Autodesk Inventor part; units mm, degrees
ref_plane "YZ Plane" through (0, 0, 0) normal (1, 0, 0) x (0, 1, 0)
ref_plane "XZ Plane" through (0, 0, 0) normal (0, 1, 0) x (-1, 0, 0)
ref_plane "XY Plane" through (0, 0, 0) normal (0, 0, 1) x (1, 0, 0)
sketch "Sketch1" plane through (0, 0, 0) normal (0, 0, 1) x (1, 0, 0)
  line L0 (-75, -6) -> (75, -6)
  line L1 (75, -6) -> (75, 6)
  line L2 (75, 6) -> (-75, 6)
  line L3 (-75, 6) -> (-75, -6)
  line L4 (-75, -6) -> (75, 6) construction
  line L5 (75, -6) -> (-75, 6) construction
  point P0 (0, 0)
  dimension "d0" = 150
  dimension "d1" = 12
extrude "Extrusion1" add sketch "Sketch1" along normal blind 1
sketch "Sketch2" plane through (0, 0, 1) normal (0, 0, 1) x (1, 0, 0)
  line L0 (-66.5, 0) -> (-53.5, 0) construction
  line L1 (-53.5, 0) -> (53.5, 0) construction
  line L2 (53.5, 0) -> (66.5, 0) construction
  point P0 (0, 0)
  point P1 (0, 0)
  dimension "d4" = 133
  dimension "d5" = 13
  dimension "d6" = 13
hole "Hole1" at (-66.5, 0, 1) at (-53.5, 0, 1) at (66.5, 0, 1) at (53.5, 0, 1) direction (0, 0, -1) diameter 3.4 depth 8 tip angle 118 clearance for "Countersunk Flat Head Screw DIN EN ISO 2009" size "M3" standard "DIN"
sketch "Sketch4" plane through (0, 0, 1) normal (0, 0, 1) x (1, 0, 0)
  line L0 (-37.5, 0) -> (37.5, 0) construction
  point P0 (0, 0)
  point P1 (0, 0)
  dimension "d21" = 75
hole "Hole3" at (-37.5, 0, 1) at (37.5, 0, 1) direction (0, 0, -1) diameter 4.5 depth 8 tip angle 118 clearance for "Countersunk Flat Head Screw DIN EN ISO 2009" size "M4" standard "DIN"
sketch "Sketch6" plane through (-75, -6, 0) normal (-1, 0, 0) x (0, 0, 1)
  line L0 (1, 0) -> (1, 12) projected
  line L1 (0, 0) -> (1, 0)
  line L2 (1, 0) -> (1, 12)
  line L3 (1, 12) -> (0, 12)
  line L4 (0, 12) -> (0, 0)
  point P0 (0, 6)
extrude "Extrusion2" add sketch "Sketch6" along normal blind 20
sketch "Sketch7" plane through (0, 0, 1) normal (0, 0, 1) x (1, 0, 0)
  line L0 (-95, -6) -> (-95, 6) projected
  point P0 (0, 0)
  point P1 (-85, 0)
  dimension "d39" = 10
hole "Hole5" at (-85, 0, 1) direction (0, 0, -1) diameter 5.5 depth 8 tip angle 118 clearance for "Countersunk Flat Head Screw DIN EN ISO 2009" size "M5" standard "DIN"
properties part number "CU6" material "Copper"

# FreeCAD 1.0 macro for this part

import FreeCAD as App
import Part
import Sketcher

V = App.Vector

doc = App.newDocument("Part")
body = doc.addObject("PartDesign::Body", "Body")

# Sketch on XY plane
sketch1 = body.newObject("Sketcher::SketchObject", "Sketch")
sketch1.AttachmentSupport = (doc.getObject("XY_Plane"), [""])
sketch1.MapMode = "FlatFace"
sketch1.addGeometry(Part.LineSegment(V(-75, 6, 0), V(-75, -6, 0)), False)
sketch1.addGeometry(Part.LineSegment(V(-75, -6, 0), V(75, -6, 0)), False)
sketch1.addGeometry(Part.LineSegment(V(75, -6, 0), V(75, 6, 0)), False)
sketch1.addGeometry(Part.LineSegment(V(75, 6, 0), V(-75, 6, 0)), False)
sketch1.addConstraint(Sketcher.Constraint("Coincident", 0, 2, 1, 1))
sketch1.addConstraint(Sketcher.Constraint("Coincident", 1, 2, 2, 1))
sketch1.addConstraint(Sketcher.Constraint("Coincident", 2, 2, 3, 1))
sketch1.addConstraint(Sketcher.Constraint("Coincident", 3, 2, 0, 1))
sketch1.addConstraint(Sketcher.Constraint("Vertical", 0))
sketch1.addConstraint(Sketcher.Constraint("Horizontal", 1))
sketch1.addConstraint(Sketcher.Constraint("Vertical", 2))
sketch1.addConstraint(Sketcher.Constraint("Horizontal", 3))
sketch1.addConstraint(Sketcher.Constraint("Symmetric", 0, 2, 2, 2, -1, 1))
sketch1.addConstraint(Sketcher.Constraint("DistanceX", 1, 1, 1, 2, 150.0))
sketch1.addConstraint(Sketcher.Constraint("DistanceY", 0, 2, 0, 1, 12.0))
pad1 = body.newObject("PartDesign::Pad", "Pad")
pad1.Profile = sketch1
pad1.Length = 1

# Sketch on XY plane
sketch2 = body.newObject("Sketcher::SketchObject", "Sketch001")
sketch2.AttachmentSupport = (doc.getObject("XY_Plane"), [""])
sketch2.MapMode = "FlatFace"
sketch2.AttachmentOffset = App.Placement(V(0, 0, 1), App.Rotation())
sketch2.addGeometry(Part.Circle(V(-66.5, 0, 0), V(0, 0, 1), 1.7), False)
sketch2.addGeometry(Part.Circle(V(-53.5, 0, 0), V(0, 0, 1), 1.7), False)
sketch2.addGeometry(Part.Circle(V(66.5, 0, 0), V(0, 0, 1), 1.7), False)
sketch2.addGeometry(Part.Circle(V(53.5, 0, 0), V(0, 0, 1), 1.7), False)
sketch2.addConstraint(Sketcher.Constraint("Equal", 0, 1))
sketch2.addConstraint(Sketcher.Constraint("Equal", 1, 2))
sketch2.addConstraint(Sketcher.Constraint("Equal", 2, 3))
sketch2.addConstraint(Sketcher.Constraint("Symmetric", 0, 3, 2, 3, -1, 1))
sketch2.addConstraint(Sketcher.Constraint("Symmetric", 1, 3, 3, 3, -1, 1))
sketch2.addConstraint(Sketcher.Constraint("PointOnObject", 0, 3, -1))
sketch2.addConstraint(Sketcher.Constraint("PointOnObject", 1, 3, -1))
sketch2.addConstraint(Sketcher.Constraint("Diameter", 0, 3.4))
sketch2.addConstraint(Sketcher.Constraint("DistanceX", 0, 3, 1, 3, 13.0))
sketch2.addConstraint(Sketcher.Constraint("DistanceX", 1, 3, 2, 3, 120.0))
doc.recompute()
hole = body.newObject("PartDesign::Hole", "Hole")
hole.Profile = sketch2
hole.ThreadType = "None"
hole.Diameter = 3.4
hole.DepthType = "Dimension"
hole.Depth = 8
hole.DrillPoint = "Angled"
hole.DrillPointAngle = 118

# Sketch on XY plane
sketch3 = body.newObject("Sketcher::SketchObject", "Sketch002")
sketch3.AttachmentSupport = (doc.getObject("XY_Plane"), [""])
sketch3.MapMode = "FlatFace"
sketch3.AttachmentOffset = App.Placement(V(0, 0, 1), App.Rotation())
sketch3.addGeometry(Part.Circle(V(-37.5, 0, 0), V(0, 0, 1), 2.2), False)
sketch3.addGeometry(Part.Circle(V(37.5, 0, 0), V(0, 0, 1), 2.2), False)
sketch3.addConstraint(Sketcher.Constraint("Equal", 0, 1))
sketch3.addConstraint(Sketcher.Constraint("Symmetric", 0, 3, 1, 3, -1, 1))
sketch3.addConstraint(Sketcher.Constraint("PointOnObject", 0, 3, -1))
sketch3.addConstraint(Sketcher.Constraint("Diameter", 0, 4.5))
sketch3.addConstraint(Sketcher.Constraint("DistanceX", 0, 3, 1, 3, 75.0))
doc.recompute()
hole2 = body.newObject("PartDesign::Hole", "Hole001")
hole2.Profile = sketch3
hole2.ThreadType = "None"
hole2.Diameter = 4.5
hole2.DepthType = "Dimension"
hole2.Depth = 8
hole2.DrillPoint = "Angled"
hole2.DrillPointAngle = 118

# Sketch on YZ plane
sketch4 = body.newObject("Sketcher::SketchObject", "Sketch003")
sketch4.AttachmentSupport = (doc.getObject("YZ_Plane"), [""])
sketch4.MapMode = "FlatFace"
sketch4.AttachmentOffset = App.Placement(V(0, 0, -75), App.Rotation())
sketch4.addGeometry(Part.LineSegment(V(-6, 0, 0), V(-6, 1, 0)), False)
sketch4.addGeometry(Part.LineSegment(V(-6, 1, 0), V(6, 1, 0)), False)
sketch4.addGeometry(Part.LineSegment(V(6, 1, 0), V(6, 0, 0)), False)
sketch4.addGeometry(Part.LineSegment(V(6, 0, 0), V(-6, 0, 0)), False)
sketch4.addConstraint(Sketcher.Constraint("Coincident", 0, 2, 1, 1))
sketch4.addConstraint(Sketcher.Constraint("Coincident", 1, 2, 2, 1))
sketch4.addConstraint(Sketcher.Constraint("Coincident", 2, 2, 3, 1))
sketch4.addConstraint(Sketcher.Constraint("Coincident", 3, 2, 0, 1))
sketch4.addConstraint(Sketcher.Constraint("Vertical", 0))
sketch4.addConstraint(Sketcher.Constraint("Horizontal", 1))
sketch4.addConstraint(Sketcher.Constraint("Vertical", 2))
sketch4.addConstraint(Sketcher.Constraint("Horizontal", 3))
sketch4.addConstraint(Sketcher.Constraint("Symmetric", 2, 2, 3, 2, -1, 1))
sketch4.addConstraint(Sketcher.Constraint("DistanceX", 1, 1, 1, 2, 12.0))
sketch4.addConstraint(Sketcher.Constraint("DistanceY", 0, 1, 0, 2, 1.0))
pad2 = body.newObject("PartDesign::Pad", "Pad001")
pad2.Profile = sketch4
pad2.Length = 20
pad2.Reversed = True

# Sketch on XY plane
sketch5 = body.newObject("Sketcher::SketchObject", "Sketch004")
sketch5.AttachmentSupport = (doc.getObject("XY_Plane"), [""])
sketch5.MapMode = "FlatFace"
sketch5.AttachmentOffset = App.Placement(V(0, 0, 1), App.Rotation())
sketch5.addGeometry(Part.Circle(V(-85, 0, 0), V(0, 0, 1), 2.8), False)
sketch5.addConstraint(Sketcher.Constraint("PointOnObject", 0, 3, -1))
sketch5.addConstraint(Sketcher.Constraint("Diameter", 0, 5.5))
sketch5.addConstraint(Sketcher.Constraint("DistanceX", 0, 3, -1, 1, 85.0))
doc.recompute()
hole3 = body.newObject("PartDesign::Hole", "Hole002")
hole3.Profile = sketch5
hole3.ThreadType = "None"
hole3.Diameter = 5.5
hole3.DepthType = "Dimension"
hole3.Depth = 8
hole3.DrillPoint = "Angled"
hole3.DrillPointAngle = 118

doc.recompute()
